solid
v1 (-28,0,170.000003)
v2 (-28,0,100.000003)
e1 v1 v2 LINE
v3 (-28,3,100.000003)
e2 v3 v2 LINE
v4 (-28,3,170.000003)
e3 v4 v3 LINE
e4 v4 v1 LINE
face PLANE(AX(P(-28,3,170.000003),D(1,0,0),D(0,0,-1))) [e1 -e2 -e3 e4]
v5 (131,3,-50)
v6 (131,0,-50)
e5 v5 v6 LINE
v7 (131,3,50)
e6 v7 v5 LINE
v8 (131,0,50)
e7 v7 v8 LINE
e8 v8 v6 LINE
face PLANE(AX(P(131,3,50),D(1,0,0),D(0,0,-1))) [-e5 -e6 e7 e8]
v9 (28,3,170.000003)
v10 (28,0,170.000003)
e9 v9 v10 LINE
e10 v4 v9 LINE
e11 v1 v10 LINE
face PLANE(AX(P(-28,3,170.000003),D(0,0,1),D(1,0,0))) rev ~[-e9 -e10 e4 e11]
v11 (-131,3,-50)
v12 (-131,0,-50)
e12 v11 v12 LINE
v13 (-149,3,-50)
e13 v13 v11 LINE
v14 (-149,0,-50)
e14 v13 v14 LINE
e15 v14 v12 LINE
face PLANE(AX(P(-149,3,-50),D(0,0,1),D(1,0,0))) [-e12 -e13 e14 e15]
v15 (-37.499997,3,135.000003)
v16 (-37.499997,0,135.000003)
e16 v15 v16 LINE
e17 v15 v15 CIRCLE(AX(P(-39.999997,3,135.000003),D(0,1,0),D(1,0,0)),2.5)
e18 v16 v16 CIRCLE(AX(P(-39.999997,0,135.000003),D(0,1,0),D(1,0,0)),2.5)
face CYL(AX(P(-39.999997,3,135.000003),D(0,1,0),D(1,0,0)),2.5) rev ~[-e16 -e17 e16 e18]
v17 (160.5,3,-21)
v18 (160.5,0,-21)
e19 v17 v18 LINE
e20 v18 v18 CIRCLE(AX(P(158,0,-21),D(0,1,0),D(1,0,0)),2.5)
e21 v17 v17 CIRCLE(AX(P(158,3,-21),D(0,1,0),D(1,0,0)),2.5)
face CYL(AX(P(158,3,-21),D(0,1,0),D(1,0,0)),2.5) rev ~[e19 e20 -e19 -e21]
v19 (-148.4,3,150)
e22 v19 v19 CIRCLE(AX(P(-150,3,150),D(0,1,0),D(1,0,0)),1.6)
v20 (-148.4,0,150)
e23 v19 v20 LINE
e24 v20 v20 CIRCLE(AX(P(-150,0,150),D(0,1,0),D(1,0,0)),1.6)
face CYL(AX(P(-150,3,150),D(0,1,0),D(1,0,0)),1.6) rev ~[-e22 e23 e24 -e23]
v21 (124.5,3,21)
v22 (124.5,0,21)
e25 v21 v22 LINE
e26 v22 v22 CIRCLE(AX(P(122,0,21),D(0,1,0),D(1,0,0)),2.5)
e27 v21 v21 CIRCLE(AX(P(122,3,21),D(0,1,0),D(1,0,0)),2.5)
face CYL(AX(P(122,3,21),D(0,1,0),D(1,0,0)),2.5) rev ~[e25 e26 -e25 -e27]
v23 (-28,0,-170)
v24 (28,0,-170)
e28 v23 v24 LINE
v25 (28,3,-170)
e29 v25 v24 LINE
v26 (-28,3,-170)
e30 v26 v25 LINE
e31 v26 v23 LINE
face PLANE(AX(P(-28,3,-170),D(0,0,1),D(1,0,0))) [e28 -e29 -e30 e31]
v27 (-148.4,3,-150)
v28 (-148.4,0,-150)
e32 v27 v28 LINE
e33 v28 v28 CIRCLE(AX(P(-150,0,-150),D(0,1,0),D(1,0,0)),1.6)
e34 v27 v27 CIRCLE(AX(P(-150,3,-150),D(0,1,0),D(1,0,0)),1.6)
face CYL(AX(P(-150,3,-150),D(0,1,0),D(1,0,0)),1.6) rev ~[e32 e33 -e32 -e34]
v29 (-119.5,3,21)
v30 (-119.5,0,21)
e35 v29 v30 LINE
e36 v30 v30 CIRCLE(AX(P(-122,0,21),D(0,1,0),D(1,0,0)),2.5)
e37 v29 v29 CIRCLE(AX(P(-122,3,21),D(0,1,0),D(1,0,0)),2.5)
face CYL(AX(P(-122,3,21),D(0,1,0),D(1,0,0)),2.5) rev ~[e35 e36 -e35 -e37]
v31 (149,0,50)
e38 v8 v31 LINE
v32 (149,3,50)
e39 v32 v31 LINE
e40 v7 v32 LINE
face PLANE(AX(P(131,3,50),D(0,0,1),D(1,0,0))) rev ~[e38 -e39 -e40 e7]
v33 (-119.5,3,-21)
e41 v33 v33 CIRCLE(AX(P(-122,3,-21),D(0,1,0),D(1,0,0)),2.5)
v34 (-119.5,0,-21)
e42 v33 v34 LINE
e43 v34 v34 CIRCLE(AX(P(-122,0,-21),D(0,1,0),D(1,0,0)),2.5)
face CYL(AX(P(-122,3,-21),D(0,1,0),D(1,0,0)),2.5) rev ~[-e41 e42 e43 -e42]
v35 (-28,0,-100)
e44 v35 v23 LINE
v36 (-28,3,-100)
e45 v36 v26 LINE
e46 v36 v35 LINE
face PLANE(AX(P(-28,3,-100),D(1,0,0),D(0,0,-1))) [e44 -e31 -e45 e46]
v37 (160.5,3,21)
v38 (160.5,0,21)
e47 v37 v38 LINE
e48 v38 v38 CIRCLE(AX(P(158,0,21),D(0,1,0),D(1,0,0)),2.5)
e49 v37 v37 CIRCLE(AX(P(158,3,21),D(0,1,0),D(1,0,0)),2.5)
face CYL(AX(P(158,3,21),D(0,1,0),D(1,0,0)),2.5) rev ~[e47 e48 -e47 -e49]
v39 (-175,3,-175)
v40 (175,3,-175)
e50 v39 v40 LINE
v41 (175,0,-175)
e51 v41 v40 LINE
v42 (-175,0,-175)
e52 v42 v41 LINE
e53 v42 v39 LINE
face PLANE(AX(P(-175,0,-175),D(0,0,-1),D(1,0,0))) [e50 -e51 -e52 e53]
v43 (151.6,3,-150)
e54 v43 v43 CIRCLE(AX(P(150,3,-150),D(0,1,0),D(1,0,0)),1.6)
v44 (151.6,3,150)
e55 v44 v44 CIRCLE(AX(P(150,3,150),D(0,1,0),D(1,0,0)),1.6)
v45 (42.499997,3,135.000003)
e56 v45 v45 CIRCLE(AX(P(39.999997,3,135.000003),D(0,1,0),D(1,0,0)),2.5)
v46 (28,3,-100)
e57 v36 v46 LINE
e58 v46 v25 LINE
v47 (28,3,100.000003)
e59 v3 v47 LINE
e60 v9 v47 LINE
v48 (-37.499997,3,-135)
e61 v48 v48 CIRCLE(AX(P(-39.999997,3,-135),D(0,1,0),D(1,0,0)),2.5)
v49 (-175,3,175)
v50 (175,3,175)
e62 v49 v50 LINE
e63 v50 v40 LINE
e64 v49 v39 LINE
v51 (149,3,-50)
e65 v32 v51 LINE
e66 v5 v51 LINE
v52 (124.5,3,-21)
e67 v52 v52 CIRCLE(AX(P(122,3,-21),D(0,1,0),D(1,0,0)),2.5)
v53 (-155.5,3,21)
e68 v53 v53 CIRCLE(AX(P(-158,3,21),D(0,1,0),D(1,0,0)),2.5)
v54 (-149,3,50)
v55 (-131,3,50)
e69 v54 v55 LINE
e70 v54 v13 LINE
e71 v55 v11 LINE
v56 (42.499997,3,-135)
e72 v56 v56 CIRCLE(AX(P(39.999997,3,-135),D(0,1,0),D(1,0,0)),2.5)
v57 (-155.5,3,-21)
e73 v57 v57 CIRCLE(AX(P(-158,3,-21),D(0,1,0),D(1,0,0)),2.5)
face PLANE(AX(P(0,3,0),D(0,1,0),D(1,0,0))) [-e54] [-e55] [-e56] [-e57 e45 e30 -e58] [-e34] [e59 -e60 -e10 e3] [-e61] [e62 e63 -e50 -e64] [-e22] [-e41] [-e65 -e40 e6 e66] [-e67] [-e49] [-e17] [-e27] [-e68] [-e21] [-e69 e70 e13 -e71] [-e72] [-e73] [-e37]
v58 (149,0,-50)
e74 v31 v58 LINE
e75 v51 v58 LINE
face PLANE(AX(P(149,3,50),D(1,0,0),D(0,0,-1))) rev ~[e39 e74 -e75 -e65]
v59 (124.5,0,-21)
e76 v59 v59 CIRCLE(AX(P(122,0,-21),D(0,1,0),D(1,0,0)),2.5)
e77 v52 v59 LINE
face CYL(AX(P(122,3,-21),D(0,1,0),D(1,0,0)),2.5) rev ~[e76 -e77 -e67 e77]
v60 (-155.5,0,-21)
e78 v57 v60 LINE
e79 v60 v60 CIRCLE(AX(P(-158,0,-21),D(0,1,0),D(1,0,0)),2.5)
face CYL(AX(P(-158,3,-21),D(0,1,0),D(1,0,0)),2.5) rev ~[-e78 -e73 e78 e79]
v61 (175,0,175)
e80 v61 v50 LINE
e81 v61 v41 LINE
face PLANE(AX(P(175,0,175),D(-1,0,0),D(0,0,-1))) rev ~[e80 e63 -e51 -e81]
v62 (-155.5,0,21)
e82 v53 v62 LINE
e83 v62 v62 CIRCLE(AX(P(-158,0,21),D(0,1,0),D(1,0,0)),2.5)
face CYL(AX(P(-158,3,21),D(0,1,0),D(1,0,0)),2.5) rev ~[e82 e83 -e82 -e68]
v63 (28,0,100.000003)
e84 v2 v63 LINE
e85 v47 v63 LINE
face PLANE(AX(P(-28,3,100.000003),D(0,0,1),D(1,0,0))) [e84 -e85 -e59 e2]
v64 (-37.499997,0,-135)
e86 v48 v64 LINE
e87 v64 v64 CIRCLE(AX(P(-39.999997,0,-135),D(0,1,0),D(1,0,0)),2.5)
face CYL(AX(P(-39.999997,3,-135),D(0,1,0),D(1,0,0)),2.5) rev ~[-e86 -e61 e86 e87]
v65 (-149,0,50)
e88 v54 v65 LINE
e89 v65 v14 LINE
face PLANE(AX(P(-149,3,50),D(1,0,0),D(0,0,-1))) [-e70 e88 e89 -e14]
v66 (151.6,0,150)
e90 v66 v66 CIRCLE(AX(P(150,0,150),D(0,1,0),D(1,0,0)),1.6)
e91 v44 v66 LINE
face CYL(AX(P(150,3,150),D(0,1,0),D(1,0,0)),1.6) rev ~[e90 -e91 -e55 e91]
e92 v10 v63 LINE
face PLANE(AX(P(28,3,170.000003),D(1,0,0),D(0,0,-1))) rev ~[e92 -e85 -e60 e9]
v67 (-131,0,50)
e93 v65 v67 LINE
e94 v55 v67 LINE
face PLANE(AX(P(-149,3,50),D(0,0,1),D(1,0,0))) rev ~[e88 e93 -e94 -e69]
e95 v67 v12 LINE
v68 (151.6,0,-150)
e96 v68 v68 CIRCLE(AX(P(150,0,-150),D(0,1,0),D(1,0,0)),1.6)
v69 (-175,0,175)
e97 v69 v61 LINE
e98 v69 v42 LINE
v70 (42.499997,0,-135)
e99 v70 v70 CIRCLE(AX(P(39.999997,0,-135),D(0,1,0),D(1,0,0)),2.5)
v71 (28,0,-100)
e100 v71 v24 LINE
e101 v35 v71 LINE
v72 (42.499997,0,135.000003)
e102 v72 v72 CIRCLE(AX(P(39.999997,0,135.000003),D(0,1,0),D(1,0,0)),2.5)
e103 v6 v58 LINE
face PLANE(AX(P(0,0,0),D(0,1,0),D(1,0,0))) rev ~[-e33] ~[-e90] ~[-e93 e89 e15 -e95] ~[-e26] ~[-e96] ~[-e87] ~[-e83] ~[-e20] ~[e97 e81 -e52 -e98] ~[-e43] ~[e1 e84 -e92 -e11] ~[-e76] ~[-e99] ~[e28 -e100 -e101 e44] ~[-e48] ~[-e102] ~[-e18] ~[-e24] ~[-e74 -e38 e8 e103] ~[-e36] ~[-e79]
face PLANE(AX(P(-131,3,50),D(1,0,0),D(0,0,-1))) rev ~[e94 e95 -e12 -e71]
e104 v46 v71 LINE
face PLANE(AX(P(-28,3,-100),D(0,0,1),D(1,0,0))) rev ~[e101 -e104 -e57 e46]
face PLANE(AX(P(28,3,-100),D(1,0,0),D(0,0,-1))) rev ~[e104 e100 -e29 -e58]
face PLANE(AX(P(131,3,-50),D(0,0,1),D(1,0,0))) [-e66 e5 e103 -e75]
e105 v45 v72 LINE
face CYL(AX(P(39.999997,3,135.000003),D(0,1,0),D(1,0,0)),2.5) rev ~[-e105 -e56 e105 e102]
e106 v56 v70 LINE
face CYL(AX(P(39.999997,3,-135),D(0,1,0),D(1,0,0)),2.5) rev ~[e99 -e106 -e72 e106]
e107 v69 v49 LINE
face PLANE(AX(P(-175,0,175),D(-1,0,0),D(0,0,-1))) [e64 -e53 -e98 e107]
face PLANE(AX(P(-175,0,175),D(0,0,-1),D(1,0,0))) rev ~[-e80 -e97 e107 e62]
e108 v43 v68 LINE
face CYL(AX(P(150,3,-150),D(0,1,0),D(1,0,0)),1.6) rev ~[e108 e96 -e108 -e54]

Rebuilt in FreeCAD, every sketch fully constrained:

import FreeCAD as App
import Part
import Sketcher
Q = App.Units.Quantity

doc = App.newDocument("Part")
params = doc.addObject("Spreadsheet::Sheet", "Params")
for row, (alias, value) in enumerate([
    ("sketch1_width", "350 mm"),
    ("pad1_length", "3 mm"),
    ("sketch2_width", "18 mm"),
    ("sketch2_height", "100 mm"),
    ("pocket1_length", "3 mm"),
    ("sketch3_width", "56 mm"),
    ("sketch3_height", "70 mm"),
    ("pocket2_length", "3 mm"),
    ("sketch4_diameter", "5 mm"),
    ("sketch4_diameter2", "3.2 mm"),
    ("pocket3_length", "3 mm"),
], start=1):
    params.set(f"A{row}", alias)
    params.set(f"B{row}", "=" + value)
    params.setAlias(f"B{row}", alias)

body = doc.addObject("PartDesign::Body", "Body")

# Sketch on XZ plane
sketch1 = body.newObject("Sketcher::SketchObject", "Sketch")
sketch1.AttachmentSupport = (doc.getObject("XZ_Plane"), [""])
sketch1.MapMode = "FlatFace"
sketch1.addGeometry([
    Part.LineSegment(App.Vector(-175, -175, 0), App.Vector(-175, 175, 0)),
    Part.LineSegment(App.Vector(-175, 175, 0), App.Vector(175, 175, 0)),
    Part.LineSegment(App.Vector(175, 175, 0), App.Vector(175, -175, 0)),
    Part.LineSegment(App.Vector(175, -175, 0), App.Vector(-175, -175, 0)),
], False)
sketch1.addConstraint([
    Sketcher.Constraint("Coincident", 0, 2, 1, 1),
    Sketcher.Constraint("Coincident", 1, 2, 2, 1),
    Sketcher.Constraint("Coincident", 2, 2, 3, 1),
    Sketcher.Constraint("Coincident", 3, 2, 0, 1),
    Sketcher.Constraint("Vertical", 0),
    Sketcher.Constraint("Horizontal", 1),
    Sketcher.Constraint("Vertical", 2),
    Sketcher.Constraint("Horizontal", 3),
    Sketcher.Constraint("Symmetric", 0, 2, 2, 2, -1, 1),
    Sketcher.Constraint("Equal", 3, 0),
    Sketcher.Constraint("DistanceX", 1, 1, 1, 2, Q("350 mm")),
])
sketch1.setExpression("Constraints[10]", "Params.sketch1_width")
pad1 = body.newObject("PartDesign::Pad", "Pad")
pad1.Profile = sketch1
pad1.setExpression("Length", "Params.pad1_length")
pad1.Reversed = True

# Sketch on XZ plane
sketch2 = body.newObject("Sketcher::SketchObject", "Sketch001")
sketch2.AttachmentSupport = (doc.getObject("XZ_Plane"), [""])
sketch2.MapMode = "FlatFace"
sketch2.AttachmentOffset = App.Placement(App.Vector(0, 0, -3), App.Rotation())
sketch2.addGeometry([
    Part.LineSegment(App.Vector(-149, -50, 0), App.Vector(-149, 50, 0)),  # 0
    Part.LineSegment(App.Vector(-149, 50, 0), App.Vector(-131, 50, 0)),  # 1
    Part.LineSegment(App.Vector(-131, 50, 0), App.Vector(-131, -50, 0)),  # 2
    Part.LineSegment(App.Vector(-131, -50, 0), App.Vector(-149, -50, 0)),  # 3
    Part.LineSegment(App.Vector(131, -50, 0), App.Vector(131, 50, 0)),  # 4
    Part.LineSegment(App.Vector(131, 50, 0), App.Vector(149, 50, 0)),  # 5
    Part.LineSegment(App.Vector(149, 50, 0), App.Vector(149, -50, 0)),  # 6
    Part.LineSegment(App.Vector(149, -50, 0), App.Vector(131, -50, 0)),  # 7
], False)
sketch2.addConstraint([
    Sketcher.Constraint("Coincident", 0, 2, 1, 1),
    Sketcher.Constraint("Coincident", 1, 2, 2, 1),
    Sketcher.Constraint("Coincident", 2, 2, 3, 1),
    Sketcher.Constraint("Coincident", 3, 2, 0, 1),
    Sketcher.Constraint("Coincident", 4, 2, 5, 1),
    Sketcher.Constraint("Coincident", 5, 2, 6, 1),
    Sketcher.Constraint("Coincident", 6, 2, 7, 1),
    Sketcher.Constraint("Coincident", 7, 2, 4, 1),
    Sketcher.Constraint("Vertical", 0),
    Sketcher.Constraint("Horizontal", 1),
    Sketcher.Constraint("Vertical", 2),
    Sketcher.Constraint("Horizontal", 3),
    Sketcher.Constraint("Vertical", 4),
    Sketcher.Constraint("Horizontal", 5),
    Sketcher.Constraint("Vertical", 6),
    Sketcher.Constraint("Horizontal", 7),
    Sketcher.Constraint("Symmetric", 2, 2, 4, 2, -1, 1),
    Sketcher.Constraint("Symmetric", 0, 2, 6, 2, -1, 1),
    Sketcher.Constraint("Horizontal", 1, 2, 4, 2),
    Sketcher.Constraint("DistanceX", 1, 1, 1, 2, Q("18 mm")),
    Sketcher.Constraint("DistanceY", 0, 1, 0, 2, Q("100 mm")),
    Sketcher.Constraint("DistanceX", 0, 2, -1, 1, Q("149 mm")),
])
sketch2.setExpression("Constraints[19]", "Params.sketch2_width")
sketch2.setExpression("Constraints[20]", "Params.sketch2_height")
pocket1 = body.newObject("PartDesign::Pocket", "Pocket")
pocket1.Profile = sketch2
pocket1.setExpression("Length", "Params.pocket1_length")
pocket1.Reversed = True

# Sketch on XZ plane
sketch3 = body.newObject("Sketcher::SketchObject", "Sketch002")
sketch3.AttachmentSupport = (doc.getObject("XZ_Plane"), [""])
sketch3.MapMode = "FlatFace"
sketch3.AttachmentOffset = App.Placement(App.Vector(0, 0, -3), App.Rotation())
sketch3.addGeometry([
    Part.LineSegment(App.Vector(-28, -170, 0), App.Vector(-28, -100, 0)),  # 0
    Part.LineSegment(App.Vector(-28, -100, 0), App.Vector(28, -100, 0)),  # 1
    Part.LineSegment(App.Vector(28, -100, 0), App.Vector(28, -170, 0)),  # 2
    Part.LineSegment(App.Vector(28, -170, 0), App.Vector(-28, -170, 0)),  # 3
    Part.LineSegment(App.Vector(-28, 100.000003, 0), App.Vector(-28, 170.000003, 0)),  # 4
    Part.LineSegment(App.Vector(-28, 170.000003, 0), App.Vector(28, 170.000003, 0)),  # 5
    Part.LineSegment(App.Vector(28, 170.000003, 0), App.Vector(28, 100.000003, 0)),  # 6
    Part.LineSegment(App.Vector(28, 100.000003, 0), App.Vector(-28, 100.000003, 0)),  # 7
], False)
sketch3.addConstraint([
    Sketcher.Constraint("Coincident", 0, 2, 1, 1),
    Sketcher.Constraint("Coincident", 1, 2, 2, 1),
    Sketcher.Constraint("Coincident", 2, 2, 3, 1),
    Sketcher.Constraint("Coincident", 3, 2, 0, 1),
    Sketcher.Constraint("Coincident", 4, 2, 5, 1),
    Sketcher.Constraint("Coincident", 5, 2, 6, 1),
    Sketcher.Constraint("Coincident", 6, 2, 7, 1),
    Sketcher.Constraint("Coincident", 7, 2, 4, 1),
    Sketcher.Constraint("Vertical", 0),
    Sketcher.Constraint("Horizontal", 1),
    Sketcher.Constraint("Vertical", 2),
    Sketcher.Constraint("Horizontal", 3),
    Sketcher.Constraint("Vertical", 4),
    Sketcher.Constraint("Horizontal", 5),
    Sketcher.Constraint("Vertical", 6),
    Sketcher.Constraint("Horizontal", 7),
    Sketcher.Constraint("Symmetric", 2, 2, 4, 2, -1, 1),
    Sketcher.Constraint("Symmetric", 0, 2, 6, 2, -1, 1),
    Sketcher.Constraint("Vertical", 3, 2, 4, 2),
    Sketcher.Constraint("DistanceX", 1, 1, 1, 2, Q("56 mm")),
    Sketcher.Constraint("DistanceY", 0, 1, 0, 2, Q("70 mm")),
    Sketcher.Constraint("DistanceY", 0, 2, -1, 1, Q("100 mm")),
])
sketch3.setExpression("Constraints[19]", "Params.sketch3_width")
sketch3.setExpression("Constraints[20]", "Params.sketch3_height")
pocket2 = body.newObject("PartDesign::Pocket", "Pocket001")
pocket2.Profile = sketch3
pocket2.setExpression("Length", "Params.pocket2_length")
pocket2.Reversed = True

# Sketch on XZ plane
sketch4 = body.newObject("Sketcher::SketchObject", "Sketch003")
sketch4.AttachmentSupport = (doc.getObject("XZ_Plane"), [""])
sketch4.MapMode = "FlatFace"
sketch4.AttachmentOffset = App.Placement(App.Vector(0, 0, -3), App.Rotation())
sketch4.addGeometry([
    Part.Circle(App.Vector(-158, -21, 0), App.Vector(0, 0, 1), 2.5),  # 0
    Part.Circle(App.Vector(-158, 21, 0), App.Vector(0, 0, 1), 2.5),  # 1
    Part.Circle(App.Vector(-122, -21, 0), App.Vector(0, 0, 1), 2.5),  # 2
    Part.Circle(App.Vector(-122, 21, 0), App.Vector(0, 0, 1), 2.5),  # 3
    Part.Circle(App.Vector(158, -21, 0), App.Vector(0, 0, 1), 2.5),  # 4
    Part.Circle(App.Vector(158, 21, 0), App.Vector(0, 0, 1), 2.5),  # 5
    Part.Circle(App.Vector(122, -21, 0), App.Vector(0, 0, 1), 2.5),  # 6
    Part.Circle(App.Vector(122, 21, 0), App.Vector(0, 0, 1), 2.5),  # 7
    Part.Circle(App.Vector(-39.999997, 135.000003, 0), App.Vector(0, 0, 1), 2.5),  # 8
    Part.Circle(App.Vector(39.999997, 135.000003, 0), App.Vector(0, 0, 1), 2.5),  # 9
    Part.Circle(App.Vector(-39.999997, -135, 0), App.Vector(0, 0, 1), 2.5),  # 10
    Part.Circle(App.Vector(39.999997, -135, 0), App.Vector(0, 0, 1), 2.5),  # 11
    Part.Circle(App.Vector(-150, -150, 0), App.Vector(0, 0, 1), 1.6),  # 12
    Part.Circle(App.Vector(150, -150, 0), App.Vector(0, 0, 1), 1.6),  # 13
    Part.Circle(App.Vector(150, 150, 0), App.Vector(0, 0, 1), 1.6),  # 14
    Part.Circle(App.Vector(-150, 150, 0), App.Vector(0, 0, 1), 1.6),  # 15
], False)
sketch4.addConstraint([
    Sketcher.Constraint("Equal", 0, 1),
    Sketcher.Constraint("Equal", 1, 2),
    Sketcher.Constraint("Equal", 2, 3),
    Sketcher.Constraint("Equal", 3, 4),
    Sketcher.Constraint("Equal", 4, 5),
    Sketcher.Constraint("Equal", 5, 6),
    Sketcher.Constraint("Equal", 6, 7),
    Sketcher.Constraint("Equal", 7, 8),
    Sketcher.Constraint("Equal", 8, 9),
    Sketcher.Constraint("Equal", 9, 10),
    Sketcher.Constraint("Equal", 10, 11),
    Sketcher.Constraint("Equal", 12, 13),
    Sketcher.Constraint("Equal", 13, 14),
    Sketcher.Constraint("Equal", 14, 15),
    Sketcher.Constraint("Symmetric", 1, 3, 4, 3, -1, 1),
    Sketcher.Constraint("Symmetric", 0, 3, 5, 3, -1, 1),
    Sketcher.Constraint("Symmetric", 3, 3, 6, 3, -1, 1),
    Sketcher.Constraint("Symmetric", 2, 3, 7, 3, -1, 1),
    Sketcher.Constraint("Symmetric", 9, 3, 10, 3, -1, 1),
    Sketcher.Constraint("Symmetric", 8, 3, 11, 3, -1, 1),
    Sketcher.Constraint("Symmetric", 12, 3, 14, 3, -1, 1),
    Sketcher.Constraint("Symmetric", 13, 3, 15, 3, -1, 1),
    Sketcher.Constraint("Symmetric", 0, 3, 4, 3, -2),
    Sketcher.Constraint("Symmetric", 2, 3, 6, 3, -2),
    Sketcher.Constraint("Symmetric", 8, 3, 9, 3, -2),
    Sketcher.Constraint("Symmetric", 12, 3, 13, 3, -2),
    Sketcher.Constraint("Horizontal", 0, 3, 2, 3),
    Sketcher.Constraint("Diameter", 0, Q("5 mm")),
    Sketcher.Constraint("Diameter", 12, Q("3.2 mm")),
    Sketcher.Constraint("DistanceX", 0, 3, -1, 1, Q("158 mm")),
    Sketcher.Constraint("DistanceY", 0, 3, -1, 1, Q("21 mm")),
    Sketcher.Constraint("DistanceX", 2, 3, -1, 1, Q("122 mm")),
    Sketcher.Constraint("DistanceY", 10, 3, -1, 1, Q("135 mm")),
    Sketcher.Constraint("DistanceX", 12, 3, -1, 1, Q("150 mm")),
    Sketcher.Constraint("DistanceY", 12, 3, -1, 1, Q("150 mm")),
    Sketcher.Constraint("DistanceX", 8, 3, -1, 1, Q("39.999997 mm")),
])
sketch4.setExpression("Constraints[27]", "Params.sketch4_diameter")
sketch4.setExpression("Constraints[28]", "Params.sketch4_diameter2")
pocket3 = body.newObject("PartDesign::Pocket", "Pocket002")
pocket3.Profile = sketch4
pocket3.setExpression("Length", "Params.pocket3_length")
pocket3.Reversed = True

doc.recompute()
